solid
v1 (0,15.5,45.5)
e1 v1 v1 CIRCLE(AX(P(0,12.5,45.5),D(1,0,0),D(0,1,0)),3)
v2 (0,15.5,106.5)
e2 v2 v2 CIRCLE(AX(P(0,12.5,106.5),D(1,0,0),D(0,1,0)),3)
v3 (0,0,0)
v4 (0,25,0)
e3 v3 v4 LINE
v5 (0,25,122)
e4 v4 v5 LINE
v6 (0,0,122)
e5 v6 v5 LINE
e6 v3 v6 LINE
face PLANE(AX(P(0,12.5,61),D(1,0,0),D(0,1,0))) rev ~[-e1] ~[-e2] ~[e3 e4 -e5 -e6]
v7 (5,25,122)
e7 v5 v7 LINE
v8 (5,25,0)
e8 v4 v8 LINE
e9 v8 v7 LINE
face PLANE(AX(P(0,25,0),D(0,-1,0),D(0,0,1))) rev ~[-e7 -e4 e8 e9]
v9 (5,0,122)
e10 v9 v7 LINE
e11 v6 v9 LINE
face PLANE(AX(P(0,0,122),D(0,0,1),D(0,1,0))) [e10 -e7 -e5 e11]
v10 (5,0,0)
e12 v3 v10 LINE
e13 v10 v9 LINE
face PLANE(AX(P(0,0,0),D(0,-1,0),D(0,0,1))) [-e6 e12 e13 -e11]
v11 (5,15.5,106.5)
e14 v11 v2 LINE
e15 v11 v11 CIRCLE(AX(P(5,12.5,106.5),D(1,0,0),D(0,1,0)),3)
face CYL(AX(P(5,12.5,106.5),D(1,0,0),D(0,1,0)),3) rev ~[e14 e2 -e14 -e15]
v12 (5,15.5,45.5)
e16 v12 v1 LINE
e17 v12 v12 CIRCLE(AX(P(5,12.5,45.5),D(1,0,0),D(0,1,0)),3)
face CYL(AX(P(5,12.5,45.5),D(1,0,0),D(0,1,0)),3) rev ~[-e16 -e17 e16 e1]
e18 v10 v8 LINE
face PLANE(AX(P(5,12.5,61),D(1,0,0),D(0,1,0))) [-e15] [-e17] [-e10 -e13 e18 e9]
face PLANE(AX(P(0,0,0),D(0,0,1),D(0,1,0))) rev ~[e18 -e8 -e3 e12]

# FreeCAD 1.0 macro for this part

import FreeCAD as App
import Part
import Sketcher

V = App.Vector

doc = App.newDocument("Part")
body = doc.addObject("PartDesign::Body", "Body")

sketch1 = body.newObject("Sketcher::SketchObject", "Sketch")
sketch1.AttachmentSupport = (doc.getObject("YZ_Plane"), [""])
sketch1.MapMode = "FlatFace"
sketch1.addGeometry([
    Part.LineSegment(V(0, 122, 0), V(0, 0, 0)),
    Part.LineSegment(V(0, 0, 0), V(25, 0, 0)),
    Part.LineSegment(V(25, 0, 0), V(25, 122, 0)),
    Part.LineSegment(V(25, 122, 0), V(0, 122, 0)),
], False)
sketch1.addConstraint([
    Sketcher.Constraint("Coincident", 0, 2, 1, 1),
    Sketcher.Constraint("Coincident", 1, 2, 2, 1),
    Sketcher.Constraint("Coincident", 2, 2, 3, 1),
    Sketcher.Constraint("Coincident", 3, 2, 0, 1),
    Sketcher.Constraint("Vertical", 0),
    Sketcher.Constraint("Horizontal", 1),
    Sketcher.Constraint("Vertical", 2),
    Sketcher.Constraint("Horizontal", 3),
    Sketcher.Constraint("Coincident", 0, 2, -1, 1),
    Sketcher.Constraint("DistanceX", 1, 1, 1, 2, 25.0),
    Sketcher.Constraint("DistanceY", 0, 2, 0, 1, 122.0),
])
pad1 = body.newObject("PartDesign::Pad", "Pad")
pad1.Profile = sketch1
pad1.Length = 5

sketch2 = body.newObject("Sketcher::SketchObject", "Sketch001")
sketch2.AttachmentSupport = (doc.getObject("YZ_Plane"), [""])
sketch2.MapMode = "FlatFace"
sketch2.AttachmentOffset = App.Placement(V(0, 0, 5), App.Rotation())
sketch2.addGeometry([
    Part.Circle(V(12.5, 106.5, 0), V(0, 0, 1), 3),
    Part.Circle(V(12.5, 45.5, 0), V(0, 0, 1), 3),
], False)
sketch2.addConstraint([
    Sketcher.Constraint("Equal", 0, 1),
    Sketcher.Constraint("Vertical", 0, 3, 1, 3),
    Sketcher.Constraint("Diameter", 0, 6.0),
    Sketcher.Constraint("DistanceY", 1, 3, 0, 3, 61.0),
    Sketcher.Constraint("DistanceX", -1, 1, 0, 3, 12.5),
    Sketcher.Constraint("DistanceY", -1, 1, 0, 3, 106.5),
])
pocket1 = body.newObject("PartDesign::Pocket", "Pocket")
pocket1.Profile = sketch2
pocket1.Length = 25

doc.recompute()
